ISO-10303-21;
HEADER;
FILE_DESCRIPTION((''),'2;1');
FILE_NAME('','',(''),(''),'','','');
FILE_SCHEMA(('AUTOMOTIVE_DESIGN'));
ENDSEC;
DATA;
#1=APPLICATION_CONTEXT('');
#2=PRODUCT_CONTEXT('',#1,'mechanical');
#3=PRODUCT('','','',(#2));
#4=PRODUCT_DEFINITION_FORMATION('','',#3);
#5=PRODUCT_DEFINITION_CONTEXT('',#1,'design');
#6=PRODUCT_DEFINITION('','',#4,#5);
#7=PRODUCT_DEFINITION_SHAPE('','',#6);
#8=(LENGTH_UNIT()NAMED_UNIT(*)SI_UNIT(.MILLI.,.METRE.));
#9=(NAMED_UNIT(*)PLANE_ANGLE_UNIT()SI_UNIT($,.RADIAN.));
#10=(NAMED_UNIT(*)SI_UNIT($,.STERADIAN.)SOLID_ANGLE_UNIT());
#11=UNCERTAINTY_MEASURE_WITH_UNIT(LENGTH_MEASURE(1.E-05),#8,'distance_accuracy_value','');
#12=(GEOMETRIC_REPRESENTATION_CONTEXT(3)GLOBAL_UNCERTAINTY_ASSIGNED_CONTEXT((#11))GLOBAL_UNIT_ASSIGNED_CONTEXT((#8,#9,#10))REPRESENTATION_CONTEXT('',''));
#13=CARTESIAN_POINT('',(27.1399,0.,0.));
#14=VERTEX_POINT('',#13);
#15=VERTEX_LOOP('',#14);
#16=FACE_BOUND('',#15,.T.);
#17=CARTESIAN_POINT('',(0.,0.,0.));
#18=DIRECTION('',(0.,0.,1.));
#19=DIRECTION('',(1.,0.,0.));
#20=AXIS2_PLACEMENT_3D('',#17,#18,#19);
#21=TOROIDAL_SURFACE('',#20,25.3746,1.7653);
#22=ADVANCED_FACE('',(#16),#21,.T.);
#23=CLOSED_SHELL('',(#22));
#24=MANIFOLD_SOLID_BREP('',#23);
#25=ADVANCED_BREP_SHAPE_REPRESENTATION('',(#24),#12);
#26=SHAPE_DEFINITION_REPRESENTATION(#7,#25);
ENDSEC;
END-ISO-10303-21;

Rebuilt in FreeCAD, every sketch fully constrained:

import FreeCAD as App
import Part
import Sketcher
Q = App.Units.Quantity

doc = App.newDocument("Part")
params = doc.addObject("Spreadsheet::Sheet", "Params")
for row, (alias, value) in enumerate([
    ("sketch1_diameter", "0.139 in"),
    ("revolution_angle", "360 deg"),
], start=1):
    params.set(f"A{row}", alias)
    params.set(f"B{row}", "=" + value)
    params.setAlias(f"B{row}", alias)

body = doc.addObject("PartDesign::Body", "Body")

# Sketch on YZ plane
sketch1 = body.newObject("Sketcher::SketchObject", "Sketch")
sketch1.AttachmentSupport = (doc.getObject("YZ_Plane"), [""])
sketch1.MapMode = "FlatFace"
sketch1.addGeometry(Part.Circle(App.Vector(-25.4, 0, 0), App.Vector(0, 0, 1), 1.8), False)
sketch1.addConstraint([
    Sketcher.Constraint("PointOnObject", 0, 3, -1),
    Sketcher.Constraint("Diameter", 0, Q("0.139 in")),
    Sketcher.Constraint("DistanceX", 0, 3, -1, 1, Q("0.999 in")),
])
sketch1.setExpression("Constraints[1]", "Params.sketch1_diameter")
revolution = body.newObject("PartDesign::Revolution", "Revolution")
revolution.Profile = sketch1
revolution.ReferenceAxis = (sketch1, ["V_Axis"])
revolution.setExpression("Angle", "Params.revolution_angle")

doc.recompute()
